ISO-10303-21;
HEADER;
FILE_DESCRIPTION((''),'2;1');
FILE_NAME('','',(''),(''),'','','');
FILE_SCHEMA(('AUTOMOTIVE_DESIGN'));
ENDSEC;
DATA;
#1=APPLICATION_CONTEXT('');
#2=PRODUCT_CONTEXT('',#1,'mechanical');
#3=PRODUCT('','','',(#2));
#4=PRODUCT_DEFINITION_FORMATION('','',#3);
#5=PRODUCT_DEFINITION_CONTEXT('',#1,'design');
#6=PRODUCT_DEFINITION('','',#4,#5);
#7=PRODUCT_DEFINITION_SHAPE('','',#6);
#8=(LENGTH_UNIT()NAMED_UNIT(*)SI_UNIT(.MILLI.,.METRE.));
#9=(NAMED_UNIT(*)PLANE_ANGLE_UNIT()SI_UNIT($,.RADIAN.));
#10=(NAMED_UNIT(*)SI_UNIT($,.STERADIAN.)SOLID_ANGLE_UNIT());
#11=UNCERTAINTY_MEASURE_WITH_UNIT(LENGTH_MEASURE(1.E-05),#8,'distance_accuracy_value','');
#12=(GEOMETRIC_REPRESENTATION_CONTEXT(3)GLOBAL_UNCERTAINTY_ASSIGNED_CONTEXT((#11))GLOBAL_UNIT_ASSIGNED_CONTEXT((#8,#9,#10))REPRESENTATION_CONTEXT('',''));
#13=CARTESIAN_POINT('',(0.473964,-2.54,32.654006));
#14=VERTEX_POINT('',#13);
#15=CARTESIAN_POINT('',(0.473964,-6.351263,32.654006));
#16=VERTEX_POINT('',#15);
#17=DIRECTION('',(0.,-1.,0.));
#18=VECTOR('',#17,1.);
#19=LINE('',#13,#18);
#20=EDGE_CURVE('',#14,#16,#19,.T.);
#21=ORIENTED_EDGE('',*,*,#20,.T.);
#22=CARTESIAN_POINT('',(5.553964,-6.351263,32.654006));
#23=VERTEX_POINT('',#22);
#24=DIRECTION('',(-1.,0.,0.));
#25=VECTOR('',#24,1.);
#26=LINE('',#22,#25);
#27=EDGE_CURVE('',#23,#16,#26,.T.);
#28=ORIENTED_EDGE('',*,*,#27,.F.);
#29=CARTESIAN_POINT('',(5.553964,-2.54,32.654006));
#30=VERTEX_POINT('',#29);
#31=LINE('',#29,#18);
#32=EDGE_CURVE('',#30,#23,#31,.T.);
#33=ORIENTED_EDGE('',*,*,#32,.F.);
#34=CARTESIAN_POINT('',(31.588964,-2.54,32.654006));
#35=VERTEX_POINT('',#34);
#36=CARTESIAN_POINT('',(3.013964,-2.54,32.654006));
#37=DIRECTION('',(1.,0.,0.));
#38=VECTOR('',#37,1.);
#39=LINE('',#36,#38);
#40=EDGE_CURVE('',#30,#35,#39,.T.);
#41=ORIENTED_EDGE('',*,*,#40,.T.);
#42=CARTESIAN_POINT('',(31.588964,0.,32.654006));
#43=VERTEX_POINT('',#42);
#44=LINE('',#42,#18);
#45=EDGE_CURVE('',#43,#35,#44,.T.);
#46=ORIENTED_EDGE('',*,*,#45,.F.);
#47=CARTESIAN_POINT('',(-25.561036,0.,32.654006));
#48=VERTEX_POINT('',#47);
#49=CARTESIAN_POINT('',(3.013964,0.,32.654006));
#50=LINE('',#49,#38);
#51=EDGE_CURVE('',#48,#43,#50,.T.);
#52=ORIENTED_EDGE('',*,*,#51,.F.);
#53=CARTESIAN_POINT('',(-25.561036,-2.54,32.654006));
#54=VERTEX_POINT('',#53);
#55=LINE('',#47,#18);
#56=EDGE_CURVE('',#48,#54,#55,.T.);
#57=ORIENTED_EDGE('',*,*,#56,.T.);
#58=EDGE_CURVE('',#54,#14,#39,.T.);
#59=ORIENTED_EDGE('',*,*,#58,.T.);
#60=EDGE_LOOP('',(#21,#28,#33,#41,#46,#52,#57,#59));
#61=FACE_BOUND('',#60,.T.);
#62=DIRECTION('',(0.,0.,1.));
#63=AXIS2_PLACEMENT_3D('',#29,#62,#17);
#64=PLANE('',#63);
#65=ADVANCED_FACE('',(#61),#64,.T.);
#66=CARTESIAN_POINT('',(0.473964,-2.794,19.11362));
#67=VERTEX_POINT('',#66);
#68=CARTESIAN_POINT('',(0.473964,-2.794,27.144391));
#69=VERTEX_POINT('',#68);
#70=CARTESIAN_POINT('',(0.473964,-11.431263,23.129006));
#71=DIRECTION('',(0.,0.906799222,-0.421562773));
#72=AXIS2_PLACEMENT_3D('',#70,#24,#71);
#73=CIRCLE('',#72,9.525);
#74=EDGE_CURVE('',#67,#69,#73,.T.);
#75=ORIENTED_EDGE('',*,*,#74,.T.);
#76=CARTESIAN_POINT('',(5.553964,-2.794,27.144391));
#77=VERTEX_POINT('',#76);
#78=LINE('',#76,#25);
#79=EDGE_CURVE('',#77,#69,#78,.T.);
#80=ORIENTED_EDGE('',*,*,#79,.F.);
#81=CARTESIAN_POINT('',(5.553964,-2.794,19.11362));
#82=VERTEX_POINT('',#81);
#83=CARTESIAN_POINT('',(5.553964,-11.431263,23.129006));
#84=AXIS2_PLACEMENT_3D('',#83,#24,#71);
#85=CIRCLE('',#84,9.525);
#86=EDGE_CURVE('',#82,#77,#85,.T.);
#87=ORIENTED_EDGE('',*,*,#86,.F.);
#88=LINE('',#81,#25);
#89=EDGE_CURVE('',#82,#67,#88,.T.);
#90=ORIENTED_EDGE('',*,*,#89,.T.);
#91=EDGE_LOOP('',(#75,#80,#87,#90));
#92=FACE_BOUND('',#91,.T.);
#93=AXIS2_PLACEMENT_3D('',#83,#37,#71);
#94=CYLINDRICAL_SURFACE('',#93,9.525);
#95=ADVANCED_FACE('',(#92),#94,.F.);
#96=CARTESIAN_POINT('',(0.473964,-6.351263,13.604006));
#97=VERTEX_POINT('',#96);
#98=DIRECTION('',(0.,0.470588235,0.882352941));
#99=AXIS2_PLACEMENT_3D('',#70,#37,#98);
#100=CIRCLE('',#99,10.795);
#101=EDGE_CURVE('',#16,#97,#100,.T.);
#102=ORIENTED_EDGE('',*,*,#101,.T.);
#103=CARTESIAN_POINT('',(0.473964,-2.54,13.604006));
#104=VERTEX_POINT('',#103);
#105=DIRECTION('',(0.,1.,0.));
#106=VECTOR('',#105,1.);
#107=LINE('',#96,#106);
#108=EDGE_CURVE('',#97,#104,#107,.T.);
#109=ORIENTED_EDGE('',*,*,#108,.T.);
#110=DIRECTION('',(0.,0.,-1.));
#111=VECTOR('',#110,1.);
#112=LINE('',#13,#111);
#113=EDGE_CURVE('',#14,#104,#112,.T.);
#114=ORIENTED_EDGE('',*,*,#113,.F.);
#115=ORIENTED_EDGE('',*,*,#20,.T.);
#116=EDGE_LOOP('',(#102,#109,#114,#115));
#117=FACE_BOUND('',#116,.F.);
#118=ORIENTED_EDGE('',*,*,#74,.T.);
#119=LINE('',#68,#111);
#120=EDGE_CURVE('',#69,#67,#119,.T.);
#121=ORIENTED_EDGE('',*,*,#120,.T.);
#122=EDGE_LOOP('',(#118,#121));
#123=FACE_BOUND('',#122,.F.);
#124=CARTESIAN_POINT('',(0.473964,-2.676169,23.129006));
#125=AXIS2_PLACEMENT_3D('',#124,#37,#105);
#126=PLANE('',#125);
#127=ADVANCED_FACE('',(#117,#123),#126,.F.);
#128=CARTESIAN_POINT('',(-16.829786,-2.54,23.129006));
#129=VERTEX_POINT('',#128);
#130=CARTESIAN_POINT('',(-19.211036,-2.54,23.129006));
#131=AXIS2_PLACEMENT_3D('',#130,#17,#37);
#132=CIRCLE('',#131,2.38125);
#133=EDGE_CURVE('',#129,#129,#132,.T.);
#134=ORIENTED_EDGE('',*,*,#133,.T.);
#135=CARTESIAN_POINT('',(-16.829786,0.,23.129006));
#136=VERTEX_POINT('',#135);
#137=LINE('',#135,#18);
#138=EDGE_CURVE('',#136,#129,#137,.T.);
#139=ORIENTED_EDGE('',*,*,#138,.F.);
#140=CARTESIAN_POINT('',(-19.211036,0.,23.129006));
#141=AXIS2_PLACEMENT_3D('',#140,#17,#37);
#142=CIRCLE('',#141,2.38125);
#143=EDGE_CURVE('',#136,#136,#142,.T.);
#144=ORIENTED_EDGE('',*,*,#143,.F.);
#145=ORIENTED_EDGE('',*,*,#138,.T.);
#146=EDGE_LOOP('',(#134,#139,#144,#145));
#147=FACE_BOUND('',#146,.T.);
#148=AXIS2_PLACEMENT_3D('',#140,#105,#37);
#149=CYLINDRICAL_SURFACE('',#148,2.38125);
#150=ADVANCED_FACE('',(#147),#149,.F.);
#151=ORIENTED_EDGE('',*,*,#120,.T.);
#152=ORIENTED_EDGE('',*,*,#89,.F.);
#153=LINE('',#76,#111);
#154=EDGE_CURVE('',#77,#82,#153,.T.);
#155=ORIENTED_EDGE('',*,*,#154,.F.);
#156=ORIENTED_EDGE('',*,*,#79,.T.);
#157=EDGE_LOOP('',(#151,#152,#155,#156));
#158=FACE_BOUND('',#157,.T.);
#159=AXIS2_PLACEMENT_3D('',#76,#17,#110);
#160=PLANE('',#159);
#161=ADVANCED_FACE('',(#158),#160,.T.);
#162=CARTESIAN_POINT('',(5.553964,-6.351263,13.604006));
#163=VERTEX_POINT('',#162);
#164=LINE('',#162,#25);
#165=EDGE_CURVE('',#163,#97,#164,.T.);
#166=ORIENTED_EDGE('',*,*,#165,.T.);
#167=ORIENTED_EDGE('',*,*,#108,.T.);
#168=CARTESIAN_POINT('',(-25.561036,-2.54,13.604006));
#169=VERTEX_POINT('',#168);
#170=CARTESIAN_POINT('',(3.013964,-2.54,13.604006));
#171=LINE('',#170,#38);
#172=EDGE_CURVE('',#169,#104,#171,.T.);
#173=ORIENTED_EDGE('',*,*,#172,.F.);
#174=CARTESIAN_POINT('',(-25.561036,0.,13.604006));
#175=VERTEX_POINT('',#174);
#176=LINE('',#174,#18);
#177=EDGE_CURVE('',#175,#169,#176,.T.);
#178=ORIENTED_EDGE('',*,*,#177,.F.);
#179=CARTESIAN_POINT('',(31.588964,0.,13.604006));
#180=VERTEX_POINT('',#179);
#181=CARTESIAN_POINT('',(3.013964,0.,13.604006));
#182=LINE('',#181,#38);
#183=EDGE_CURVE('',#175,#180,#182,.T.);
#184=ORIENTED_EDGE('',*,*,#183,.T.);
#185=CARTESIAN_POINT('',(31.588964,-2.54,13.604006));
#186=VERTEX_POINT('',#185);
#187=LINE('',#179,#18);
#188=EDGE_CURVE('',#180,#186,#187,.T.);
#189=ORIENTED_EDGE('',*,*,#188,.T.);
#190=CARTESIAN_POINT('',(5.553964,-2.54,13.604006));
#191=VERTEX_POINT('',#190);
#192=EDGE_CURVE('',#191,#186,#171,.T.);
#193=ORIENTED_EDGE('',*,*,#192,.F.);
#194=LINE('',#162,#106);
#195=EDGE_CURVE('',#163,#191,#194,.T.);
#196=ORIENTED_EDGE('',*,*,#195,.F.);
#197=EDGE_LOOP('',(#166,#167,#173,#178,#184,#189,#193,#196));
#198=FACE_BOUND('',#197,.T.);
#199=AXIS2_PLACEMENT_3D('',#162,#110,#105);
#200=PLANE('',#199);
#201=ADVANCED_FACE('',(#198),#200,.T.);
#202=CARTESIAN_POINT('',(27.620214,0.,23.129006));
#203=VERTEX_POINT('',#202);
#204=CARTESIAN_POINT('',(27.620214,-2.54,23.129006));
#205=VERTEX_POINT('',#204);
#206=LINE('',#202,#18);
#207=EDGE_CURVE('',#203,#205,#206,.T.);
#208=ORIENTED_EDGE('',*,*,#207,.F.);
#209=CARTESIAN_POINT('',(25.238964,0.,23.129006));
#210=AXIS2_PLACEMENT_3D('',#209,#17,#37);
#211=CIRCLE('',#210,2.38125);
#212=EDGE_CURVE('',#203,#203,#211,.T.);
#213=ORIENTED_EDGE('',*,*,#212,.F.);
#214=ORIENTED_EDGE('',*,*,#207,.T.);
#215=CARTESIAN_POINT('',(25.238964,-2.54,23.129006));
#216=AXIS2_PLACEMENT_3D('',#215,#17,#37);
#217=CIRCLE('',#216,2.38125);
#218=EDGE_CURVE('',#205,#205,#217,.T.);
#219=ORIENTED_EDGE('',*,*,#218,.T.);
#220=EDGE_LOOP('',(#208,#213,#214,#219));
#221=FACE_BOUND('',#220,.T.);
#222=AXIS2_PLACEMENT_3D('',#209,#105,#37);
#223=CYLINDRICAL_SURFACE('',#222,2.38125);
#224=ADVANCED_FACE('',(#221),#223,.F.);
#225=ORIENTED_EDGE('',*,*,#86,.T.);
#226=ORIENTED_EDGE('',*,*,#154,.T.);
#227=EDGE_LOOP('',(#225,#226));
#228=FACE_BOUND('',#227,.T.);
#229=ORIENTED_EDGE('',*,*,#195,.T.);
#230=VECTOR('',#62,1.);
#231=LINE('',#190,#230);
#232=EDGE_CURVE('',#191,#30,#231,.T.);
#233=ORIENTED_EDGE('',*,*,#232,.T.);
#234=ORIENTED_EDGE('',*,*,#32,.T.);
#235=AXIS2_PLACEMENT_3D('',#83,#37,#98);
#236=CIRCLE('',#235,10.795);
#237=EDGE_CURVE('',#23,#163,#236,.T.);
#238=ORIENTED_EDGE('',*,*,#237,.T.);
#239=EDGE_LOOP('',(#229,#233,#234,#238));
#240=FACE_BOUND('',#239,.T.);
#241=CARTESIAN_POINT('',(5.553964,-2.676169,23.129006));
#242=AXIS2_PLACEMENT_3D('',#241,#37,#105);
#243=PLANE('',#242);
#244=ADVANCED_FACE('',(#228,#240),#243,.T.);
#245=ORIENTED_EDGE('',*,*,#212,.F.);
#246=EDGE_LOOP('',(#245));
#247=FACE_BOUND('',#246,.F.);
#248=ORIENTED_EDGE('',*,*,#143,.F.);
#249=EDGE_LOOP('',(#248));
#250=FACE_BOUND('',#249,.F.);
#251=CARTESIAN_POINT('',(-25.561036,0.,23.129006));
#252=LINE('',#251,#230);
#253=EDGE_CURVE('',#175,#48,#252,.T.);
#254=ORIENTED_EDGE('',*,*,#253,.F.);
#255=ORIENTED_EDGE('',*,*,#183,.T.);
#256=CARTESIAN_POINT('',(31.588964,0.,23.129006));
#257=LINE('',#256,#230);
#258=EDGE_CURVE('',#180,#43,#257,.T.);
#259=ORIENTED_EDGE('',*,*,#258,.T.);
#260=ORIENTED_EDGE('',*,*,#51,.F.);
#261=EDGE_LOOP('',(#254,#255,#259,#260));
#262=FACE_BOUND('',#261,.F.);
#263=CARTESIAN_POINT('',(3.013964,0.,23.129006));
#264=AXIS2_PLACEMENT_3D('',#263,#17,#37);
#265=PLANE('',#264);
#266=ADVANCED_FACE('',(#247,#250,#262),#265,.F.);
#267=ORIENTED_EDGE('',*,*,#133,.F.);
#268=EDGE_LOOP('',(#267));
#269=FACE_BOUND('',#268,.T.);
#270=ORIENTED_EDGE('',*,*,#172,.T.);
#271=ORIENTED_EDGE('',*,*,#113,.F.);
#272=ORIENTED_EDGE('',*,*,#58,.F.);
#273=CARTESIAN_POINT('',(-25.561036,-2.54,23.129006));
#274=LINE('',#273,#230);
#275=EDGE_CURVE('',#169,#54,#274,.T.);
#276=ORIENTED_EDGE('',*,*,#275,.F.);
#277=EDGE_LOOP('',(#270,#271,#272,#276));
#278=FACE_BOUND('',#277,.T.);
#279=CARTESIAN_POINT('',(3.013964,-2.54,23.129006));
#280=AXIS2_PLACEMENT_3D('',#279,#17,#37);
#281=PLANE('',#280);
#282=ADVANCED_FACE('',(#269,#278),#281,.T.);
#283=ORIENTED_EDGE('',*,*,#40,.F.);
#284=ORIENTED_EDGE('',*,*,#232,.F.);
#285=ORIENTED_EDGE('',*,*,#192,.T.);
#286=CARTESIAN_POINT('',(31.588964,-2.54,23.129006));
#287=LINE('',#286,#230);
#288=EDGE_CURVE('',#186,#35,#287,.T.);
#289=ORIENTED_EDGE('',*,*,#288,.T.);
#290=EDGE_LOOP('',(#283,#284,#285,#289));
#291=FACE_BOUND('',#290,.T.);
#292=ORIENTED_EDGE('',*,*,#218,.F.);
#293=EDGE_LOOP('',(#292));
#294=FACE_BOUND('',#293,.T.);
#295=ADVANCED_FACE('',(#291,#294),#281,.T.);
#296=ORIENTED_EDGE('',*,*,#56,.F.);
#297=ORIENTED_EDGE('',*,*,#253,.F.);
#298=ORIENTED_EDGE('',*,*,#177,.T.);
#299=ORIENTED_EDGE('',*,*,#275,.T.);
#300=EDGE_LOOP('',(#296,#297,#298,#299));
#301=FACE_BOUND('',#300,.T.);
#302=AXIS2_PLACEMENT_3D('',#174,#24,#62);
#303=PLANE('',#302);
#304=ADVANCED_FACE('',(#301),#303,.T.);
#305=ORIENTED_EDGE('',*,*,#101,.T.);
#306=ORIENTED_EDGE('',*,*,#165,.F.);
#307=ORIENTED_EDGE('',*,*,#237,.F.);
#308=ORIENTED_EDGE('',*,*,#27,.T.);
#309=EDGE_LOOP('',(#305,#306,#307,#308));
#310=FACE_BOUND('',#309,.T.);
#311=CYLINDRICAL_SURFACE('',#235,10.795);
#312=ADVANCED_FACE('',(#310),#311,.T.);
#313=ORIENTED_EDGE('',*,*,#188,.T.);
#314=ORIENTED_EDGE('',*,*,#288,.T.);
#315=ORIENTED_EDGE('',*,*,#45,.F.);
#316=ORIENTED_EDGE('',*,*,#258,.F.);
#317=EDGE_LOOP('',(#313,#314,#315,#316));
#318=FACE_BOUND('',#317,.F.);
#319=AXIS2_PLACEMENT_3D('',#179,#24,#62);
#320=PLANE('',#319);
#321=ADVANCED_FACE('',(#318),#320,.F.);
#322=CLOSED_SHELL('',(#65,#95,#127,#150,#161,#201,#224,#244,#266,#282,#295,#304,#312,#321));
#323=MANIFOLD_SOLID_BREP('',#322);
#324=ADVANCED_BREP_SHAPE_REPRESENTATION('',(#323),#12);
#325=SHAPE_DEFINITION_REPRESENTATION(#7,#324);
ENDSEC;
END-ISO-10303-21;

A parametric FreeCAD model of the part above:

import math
import FreeCAD as App
import Part
import Sketcher

V = App.Vector
Q = App.Units.Quantity

doc = App.newDocument("Part")
body = doc.addObject("PartDesign::Body", "Body")

# Sketch on XZ plane
sketch1 = doc.addObject("Sketcher::SketchObject", "Sketch")
body.addObject(sketch1)
sketch1.AttachmentSupport = (doc.XZ_Plane, [""])
sketch1.MapMode = "FlatFace"
sketch1.addGeometry([
    Part.LineSegment(V(-25.561036, 32.654006, 0), V(-25.561036, 13.604006, 0)),  # 0
    Part.LineSegment(V(-25.561036, 13.604006, 0), V(31.588964, 13.604006, 0)),  # 1
    Part.LineSegment(V(31.588964, 13.604006, 0), V(31.588964, 32.654006, 0)),  # 2
    Part.LineSegment(V(31.588964, 32.654006, 0), V(-25.561036, 32.654006, 0)),  # 3
    Part.Circle(V(-19.211036, 23.129006, 0), V(0, 0, 1), 2.38125),  # 4
    Part.Circle(V(25.238964, 23.129006, 0), V(0, 0, 1), 2.38125),  # 5
], False)
sketch1.addConstraint([
    Sketcher.Constraint("Coincident", 0, 2, 1, 1),
    Sketcher.Constraint("Coincident", 1, 2, 2, 1),
    Sketcher.Constraint("Coincident", 2, 2, 3, 1),
    Sketcher.Constraint("Coincident", 3, 2, 0, 1),
    Sketcher.Constraint("Vertical", 0),
    Sketcher.Constraint("Horizontal", 1),
    Sketcher.Constraint("Vertical", 2),
    Sketcher.Constraint("Horizontal", 3),
    Sketcher.Constraint("Equal", 4, 5),
    Sketcher.Constraint("Horizontal", 4, 3, 5, 3),
    Sketcher.Constraint("Diameter", 4, Q("0.1875 in")),
    Sketcher.Constraint("DistanceX", 0, 2, 5, 3, Q("2 in")),
    Sketcher.Constraint("DistanceX", 4, 3, 1, 2, Q("2 in")),
    Sketcher.Constraint("DistanceX", 1, 1, 1, 2, Q("2.25 in")),
    Sketcher.Constraint("DistanceY", 0, 2, 0, 1, Q("0.75 in")),
    Sketcher.Constraint("DistanceY", 0, 2, 4, 3, Q("0.375 in")),
    Sketcher.Constraint("DistanceX", 4, 3, -1, 1, Q("19.211036 mm")),
    Sketcher.Constraint("DistanceY", -1, 1, 4, 3, Q("23.129006 mm")),
])
pad1 = doc.addObject("PartDesign::Pad", "Pad")
body.addObject(pad1)
pad1.Profile = sketch1
pad1.Length = Q("0.1 in")

# Sketch on XZ plane
sketch2 = doc.addObject("Sketcher::SketchObject", "Sketch001")
body.addObject(sketch2)
sketch2.AttachmentSupport = (doc.XZ_Plane, [""])
sketch2.MapMode = "FlatFace"
sketch2.AttachmentOffset = App.Placement(V(0, 0, 0.1 * 25.4), App.Rotation())
sketch2.addGeometry([
    Part.LineSegment(V(0.473964, 30.114006, 0), V(0.473964, 16.144006, 0)),
    Part.LineSegment(V(0.473964, 16.144006, 0), V(5.553964, 16.144006, 0)),
    Part.LineSegment(V(5.553964, 16.144006, 0), V(5.553964, 30.114006, 0)),
    Part.LineSegment(V(5.553964, 30.114006, 0), V(0.473964, 30.114006, 0)),
], False)
sketch2.addConstraint([
    Sketcher.Constraint("Coincident", 0, 2, 1, 1),
    Sketcher.Constraint("Coincident", 1, 2, 2, 1),
    Sketcher.Constraint("Coincident", 2, 2, 3, 1),
    Sketcher.Constraint("Coincident", 3, 2, 0, 1),
    Sketcher.Constraint("Vertical", 0),
    Sketcher.Constraint("Horizontal", 1),
    Sketcher.Constraint("Vertical", 2),
    Sketcher.Constraint("Horizontal", 3),
    Sketcher.Constraint("DistanceX", 1, 1, 1, 2, Q("0.2 in")),
    Sketcher.Constraint("DistanceY", 0, 2, 0, 1, Q("0.55 in")),
    Sketcher.Constraint("DistanceX", -1, 1, 0, 2, Q("0.473964 mm")),
    Sketcher.Constraint("DistanceY", -1, 1, 0, 2, Q("16.144006 mm")),
])
pad2 = doc.addObject("PartDesign::Pad", "Pad001")
body.addObject(pad2)
pad2.Profile = sketch2
pad2.Length = Q("0.01 in")

# Sketch on YZ plane
sketch3 = doc.addObject("Sketcher::SketchObject", "Sketch002")
body.addObject(sketch3)
sketch3.AttachmentSupport = (doc.YZ_Plane, [""])
sketch3.MapMode = "FlatFace"
sketch3.AttachmentOffset = App.Placement(V(0, 0, 5.553964), App.Rotation())
sketch3.addGeometry([
    Part.LineSegment(V(-2.54, 32.654006, 0), V(-6.351263, 32.654006, 0)),  # 0
    Part.ArcOfCircle(Part.Circle(V(-11.431263, 23.129006, 0), V(0, 0, 1), 10.795), math.radians(61.927513), math.radians(298.072487)),  # 1
    Part.LineSegment(V(-6.351263, 13.604006, 0), V(-2.54, 13.604006, 0)),  # 2
    Part.LineSegment(V(-2.54, 13.604006, 0), V(-2.54, 32.654006, 0)),  # 3
    Part.LineSegment(V(-2.794, 27.144391, 0), V(-2.794, 19.11362, 0)),  # 4
    Part.ArcOfCircle(Part.Circle(V(-11.431263, 23.129006, 0), V(0, 0, 1), 9.525), math.radians(24.933291), math.radians(335.066709)),  # 5
], False)
sketch3.addConstraint([
    Sketcher.Constraint("Coincident", 0, 2, 1, 1),
    Sketcher.Constraint("Coincident", 1, 2, 2, 1),
    Sketcher.Constraint("Coincident", 2, 2, 3, 1),
    Sketcher.Constraint("Coincident", 3, 2, 0, 1),
    Sketcher.Constraint("Coincident", 4, 1, 5, 1),
    Sketcher.Constraint("Coincident", 5, 2, 4, 2),
    Sketcher.Constraint("Horizontal", 0),
    Sketcher.Constraint("Horizontal", 2),
    Sketcher.Constraint("Vertical", 3),
    Sketcher.Constraint("Vertical", 4),
    Sketcher.Constraint("Coincident", 5, 3, 1, 3),
    Sketcher.Constraint("Vertical", 0, 2, 1, 2),
    Sketcher.Constraint("Radius", 1, Q("0.425 in")),
    Sketcher.Constraint("Radius", 5, Q("0.375 in")),
    Sketcher.Constraint("DistanceY", 3, 1, 3, 2, Q("0.75 in")),
    Sketcher.Constraint("DistanceX", 2, 2, -1, 1, Q("0.1 in")),
    Sketcher.Constraint("DistanceX", 4, 1, -1, 1, Q("0.11 in")),
    Sketcher.Constraint("DistanceY", 4, 2, 4, 1, Q("8.030771 mm")),
    Sketcher.Constraint("DistanceY", -1, 1, 4, 1, Q("27.144391 mm")),
])
pad3 = doc.addObject("PartDesign::Pad", "Pad002")
body.addObject(pad3)
pad3.Profile = sketch3
pad3.Length = Q("0.2 in")
pad3.Reversed = True

doc.recompute()
